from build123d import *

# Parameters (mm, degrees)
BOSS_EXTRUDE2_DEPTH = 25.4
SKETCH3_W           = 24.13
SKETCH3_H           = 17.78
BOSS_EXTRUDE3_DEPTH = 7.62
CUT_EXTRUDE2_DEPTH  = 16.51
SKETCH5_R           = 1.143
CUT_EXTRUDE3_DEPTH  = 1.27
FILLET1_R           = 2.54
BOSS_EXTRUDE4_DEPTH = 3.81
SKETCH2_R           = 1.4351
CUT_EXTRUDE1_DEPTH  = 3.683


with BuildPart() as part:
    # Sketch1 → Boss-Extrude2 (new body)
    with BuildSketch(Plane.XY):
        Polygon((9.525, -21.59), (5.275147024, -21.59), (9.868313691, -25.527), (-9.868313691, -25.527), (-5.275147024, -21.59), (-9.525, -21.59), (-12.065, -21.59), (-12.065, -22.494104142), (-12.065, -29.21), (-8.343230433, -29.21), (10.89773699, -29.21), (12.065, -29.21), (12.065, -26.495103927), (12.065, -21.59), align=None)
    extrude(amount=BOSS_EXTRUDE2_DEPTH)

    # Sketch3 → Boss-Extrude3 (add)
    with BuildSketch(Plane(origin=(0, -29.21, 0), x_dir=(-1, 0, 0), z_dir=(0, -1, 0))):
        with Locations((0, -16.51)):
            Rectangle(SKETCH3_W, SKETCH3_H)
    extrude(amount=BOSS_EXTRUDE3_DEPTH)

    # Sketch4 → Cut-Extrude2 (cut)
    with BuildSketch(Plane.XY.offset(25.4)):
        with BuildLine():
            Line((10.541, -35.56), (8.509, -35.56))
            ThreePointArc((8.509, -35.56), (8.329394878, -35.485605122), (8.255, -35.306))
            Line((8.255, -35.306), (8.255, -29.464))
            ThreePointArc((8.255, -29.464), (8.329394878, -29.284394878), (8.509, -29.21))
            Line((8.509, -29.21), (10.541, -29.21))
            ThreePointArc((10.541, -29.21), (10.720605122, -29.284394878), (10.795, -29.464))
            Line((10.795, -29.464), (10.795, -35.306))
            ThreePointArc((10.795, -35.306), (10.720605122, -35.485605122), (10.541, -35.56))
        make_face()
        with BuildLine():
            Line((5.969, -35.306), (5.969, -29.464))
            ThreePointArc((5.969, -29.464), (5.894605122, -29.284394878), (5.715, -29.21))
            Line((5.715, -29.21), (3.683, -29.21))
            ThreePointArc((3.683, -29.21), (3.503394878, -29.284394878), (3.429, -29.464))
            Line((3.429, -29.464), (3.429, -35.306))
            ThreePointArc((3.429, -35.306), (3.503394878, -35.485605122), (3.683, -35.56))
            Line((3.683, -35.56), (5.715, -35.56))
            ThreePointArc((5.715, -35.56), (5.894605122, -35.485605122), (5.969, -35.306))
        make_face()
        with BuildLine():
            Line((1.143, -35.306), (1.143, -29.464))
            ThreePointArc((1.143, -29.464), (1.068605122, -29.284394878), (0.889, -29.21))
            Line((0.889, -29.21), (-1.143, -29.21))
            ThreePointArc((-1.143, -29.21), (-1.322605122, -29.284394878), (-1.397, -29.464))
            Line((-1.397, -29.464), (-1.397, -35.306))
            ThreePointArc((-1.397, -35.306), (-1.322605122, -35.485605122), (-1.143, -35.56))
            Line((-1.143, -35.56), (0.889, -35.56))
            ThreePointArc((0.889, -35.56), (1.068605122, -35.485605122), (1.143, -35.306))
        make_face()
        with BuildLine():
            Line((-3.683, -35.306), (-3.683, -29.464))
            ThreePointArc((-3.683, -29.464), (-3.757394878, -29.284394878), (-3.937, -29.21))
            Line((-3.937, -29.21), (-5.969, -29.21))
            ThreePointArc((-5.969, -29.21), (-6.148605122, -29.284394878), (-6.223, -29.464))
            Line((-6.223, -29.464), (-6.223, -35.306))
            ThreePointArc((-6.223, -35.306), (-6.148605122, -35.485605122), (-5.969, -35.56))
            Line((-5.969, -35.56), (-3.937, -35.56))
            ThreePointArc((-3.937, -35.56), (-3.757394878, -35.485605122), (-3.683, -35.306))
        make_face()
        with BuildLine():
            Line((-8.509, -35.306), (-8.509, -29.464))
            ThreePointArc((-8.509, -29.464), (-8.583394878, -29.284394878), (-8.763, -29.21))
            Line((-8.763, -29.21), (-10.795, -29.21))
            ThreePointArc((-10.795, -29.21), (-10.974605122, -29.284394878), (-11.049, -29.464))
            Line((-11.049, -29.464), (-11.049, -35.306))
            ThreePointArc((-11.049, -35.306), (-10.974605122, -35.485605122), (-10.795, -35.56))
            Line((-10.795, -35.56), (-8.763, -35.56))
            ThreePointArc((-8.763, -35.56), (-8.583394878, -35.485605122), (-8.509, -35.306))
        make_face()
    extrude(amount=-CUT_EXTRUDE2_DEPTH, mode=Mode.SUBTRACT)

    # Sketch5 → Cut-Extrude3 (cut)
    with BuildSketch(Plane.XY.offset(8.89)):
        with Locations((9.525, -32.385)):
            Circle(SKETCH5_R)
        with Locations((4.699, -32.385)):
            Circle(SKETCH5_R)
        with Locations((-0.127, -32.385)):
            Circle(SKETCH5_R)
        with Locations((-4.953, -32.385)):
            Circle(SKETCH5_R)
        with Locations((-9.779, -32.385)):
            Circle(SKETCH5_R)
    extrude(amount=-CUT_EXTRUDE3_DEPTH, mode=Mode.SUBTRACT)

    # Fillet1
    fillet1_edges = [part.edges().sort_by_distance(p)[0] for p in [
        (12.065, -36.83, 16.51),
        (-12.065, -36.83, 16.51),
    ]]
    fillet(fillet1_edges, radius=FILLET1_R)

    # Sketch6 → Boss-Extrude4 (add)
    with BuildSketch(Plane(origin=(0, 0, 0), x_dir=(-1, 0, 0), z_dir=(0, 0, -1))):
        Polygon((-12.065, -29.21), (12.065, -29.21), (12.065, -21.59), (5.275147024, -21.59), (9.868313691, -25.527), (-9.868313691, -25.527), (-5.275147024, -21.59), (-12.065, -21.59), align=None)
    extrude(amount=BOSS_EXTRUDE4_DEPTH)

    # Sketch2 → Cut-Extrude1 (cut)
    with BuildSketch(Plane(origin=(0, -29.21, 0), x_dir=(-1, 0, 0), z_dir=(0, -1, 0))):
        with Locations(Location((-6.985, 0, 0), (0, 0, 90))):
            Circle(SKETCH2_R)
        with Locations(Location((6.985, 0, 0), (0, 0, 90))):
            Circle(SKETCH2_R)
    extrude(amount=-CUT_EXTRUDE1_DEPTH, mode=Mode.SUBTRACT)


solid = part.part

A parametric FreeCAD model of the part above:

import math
import FreeCAD as App
import Part
import Sketcher
from FreeCAD import Vector
Q = App.Units.Quantity


def edges_at(feature, points):
    """Names of the edges that pass closest to the given points."""
    edges = feature.Shape.Edges
    near = lambda p: min(range(len(edges)), key=lambda i: edges[i].distToShape(Part.Vertex(*p))[0])
    return sorted({f"Edge{near(p) + 1}" for p in points})

doc = App.newDocument("Part")
body = doc.addObject("PartDesign::Body", "Body")

sketch1 = body.newObject("Sketcher::SketchObject", "Sketch")
sketch1.AttachmentSupport = (doc.getObject("XY_Plane"), [""])
sketch1.MapMode = "FlatFace"
sketch1.addGeometry([
    Part.LineSegment(Vector(5, -22, 0), Vector(10, -26, 0)),
    Part.LineSegment(Vector(10, -26, 0), Vector(-10, -26, 0)),
    Part.LineSegment(Vector(-10, -26, 0), Vector(-5, -22, 0)),
    Part.LineSegment(Vector(-5, -22, 0), Vector(-12, -22, 0)),
    Part.LineSegment(Vector(-12, -22, 0), Vector(-12, -29, 0)),
    Part.LineSegment(Vector(-12, -29, 0), Vector(12, -29, 0)),
    Part.LineSegment(Vector(12, -29, 0), Vector(12, -22, 0)),
    Part.LineSegment(Vector(12, -22, 0), Vector(5, -22, 0)),
], False)
sketch1.addConstraint([
    Sketcher.Constraint("Coincident", 0, 2, 1, 1),
    Sketcher.Constraint("Coincident", 1, 2, 2, 1),
    Sketcher.Constraint("Coincident", 2, 2, 3, 1),
    Sketcher.Constraint("Coincident", 3, 2, 4, 1),
    Sketcher.Constraint("Coincident", 4, 2, 5, 1),
    Sketcher.Constraint("Coincident", 5, 2, 6, 1),
    Sketcher.Constraint("Coincident", 6, 2, 7, 1),
    Sketcher.Constraint("Coincident", 7, 2, 0, 1),
    Sketcher.Constraint("Horizontal", 1),
    Sketcher.Constraint("Horizontal", 3),
    Sketcher.Constraint("Vertical", 4),
    Sketcher.Constraint("Horizontal", 5),
    Sketcher.Constraint("Vertical", 6),
    Sketcher.Constraint("Horizontal", 7),
    Sketcher.Constraint("Symmetric", 3, 2, 6, 2, -2),
    Sketcher.Constraint("Equal", 3, 7),
    Sketcher.Constraint("Equal", 0, 2),
    Sketcher.Constraint("DistanceY", 4, 2, 4, 1, Q("0.3 in")),
    Sketcher.Constraint("DistanceX", 5, 1, 5, 2, Q("0.95 in")),
    Sketcher.Constraint("DistanceY", 2, 2, -1, 1, Q("0.85 in")),
    Sketcher.Constraint("DistanceY", 0, 2, -1, 1, Q("1.005 in")),
    Sketcher.Constraint("DistanceX", 1, 2, 1, 1, 19.736627),
    Sketcher.Constraint("DistanceX", 3, 2, 3, 1, 6.789853),
])
pad1 = body.newObject("PartDesign::Pad", "Pad")
pad1.Profile = sketch1
pad1.Length = Q("1 in")

sketch2 = body.newObject("Sketcher::SketchObject", "Sketch001")
sketch2.AttachmentSupport = (doc.getObject("XZ_Plane"), [""])
sketch2.MapMode = "FlatFace"
sketch2.AttachmentOffset = App.Placement(Vector(0, 0, 1.15 * 25.4), App.Rotation())
sketch2.addGeometry([
    Part.LineSegment(Vector(12, 8, 0), Vector(12, 25, 0)),
    Part.LineSegment(Vector(12, 25, 0), Vector(-12, 25, 0)),
    Part.LineSegment(Vector(-12, 25, 0), Vector(-12, 8, 0)),
    Part.LineSegment(Vector(-12, 8, 0), Vector(12, 8, 0)),
], False)
sketch2.addConstraint([
    Sketcher.Constraint("Coincident", 0, 2, 1, 1),
    Sketcher.Constraint("Coincident", 1, 2, 2, 1),
    Sketcher.Constraint("Coincident", 2, 2, 3, 1),
    Sketcher.Constraint("Coincident", 3, 2, 0, 1),
    Sketcher.Constraint("Vertical", 0),
    Sketcher.Constraint("Horizontal", 1),
    Sketcher.Constraint("Vertical", 2),
    Sketcher.Constraint("Horizontal", 3),
    Sketcher.Constraint("DistanceY", 0, 1, 0, 2, Q("0.7 in")),
    Sketcher.Constraint("DistanceY", -1, 1, 0, 2, Q("1 in")),
    Sketcher.Constraint("DistanceX", 1, 2, 1, 1, Q("0.95 in")),
    Sketcher.Constraint("DistanceX", -1, 1, 0, 2, Q("0.475 in")),
])
pad2 = body.newObject("PartDesign::Pad", "Pad001")
pad2.Profile = sketch2
pad2.Length = Q("0.3 in")

sketch3 = body.newObject("Sketcher::SketchObject", "Sketch002")
sketch3.AttachmentSupport = (doc.getObject("XY_Plane"), [""])
sketch3.MapMode = "FlatFace"
sketch3.AttachmentOffset = App.Placement(Vector(0, 0, 1 * 25.4), App.Rotation())
sketch3.addGeometry([
    Part.LineSegment(Vector(8.51, -35.56, 0), Vector(10.54, -35.56, 0)),
    Part.ArcOfCircle(Part.Circle(Vector(10.54, -35.31, 0), Vector(0, 0, 1), 0.25), math.radians(-90), math.radians(0)),
    Part.LineSegment(Vector(10.79, -35.31, 0), Vector(10.79, -29.46, 0)),
    Part.ArcOfCircle(Part.Circle(Vector(10.54, -29.46, 0), Vector(0, 0, 1), 0.25), math.radians(0), math.radians(90)),
    Part.LineSegment(Vector(10.54, -29.21, 0), Vector(8.51, -29.21, 0)),
    Part.ArcOfCircle(Part.Circle(Vector(8.51, -29.46, 0), Vector(0, 0, 1), 0.25), math.radians(90), math.radians(180)),
    Part.LineSegment(Vector(8.26, -29.46, 0), Vector(8.26, -35.31, 0)),
    Part.ArcOfCircle(Part.Circle(Vector(8.51, -35.31, 0), Vector(0, 0, 1), 0.25), math.radians(-180), math.radians(-90)),
    Part.LineSegment(Vector(5.97, -35.31, 0), Vector(5.97, -29.46, 0)),
    Part.ArcOfCircle(Part.Circle(Vector(5.71, -29.46, 0), Vector(0, 0, 1), 0.25), math.radians(0), math.radians(90)),
    Part.LineSegment(Vector(5.71, -29.21, 0), Vector(3.68, -29.21, 0)),
    Part.ArcOfCircle(Part.Circle(Vector(3.68, -29.46, 0), Vector(0, 0, 1), 0.25), math.radians(90), math.radians(180)),
    Part.LineSegment(Vector(3.43, -29.46, 0), Vector(3.43, -35.31, 0)),
    Part.ArcOfCircle(Part.Circle(Vector(3.68, -35.31, 0), Vector(0, 0, 1), 0.25), math.radians(-180), math.radians(-90)),
    Part.LineSegment(Vector(3.68, -35.56, 0), Vector(5.71, -35.56, 0)),
    Part.ArcOfCircle(Part.Circle(Vector(5.71, -35.31, 0), Vector(0, 0, 1), 0.25), math.radians(-90), math.radians(0)),
    Part.LineSegment(Vector(1.14, -35.31, 0), Vector(1.14, -29.46, 0)),
    Part.ArcOfCircle(Part.Circle(Vector(0.89, -29.46, 0), Vector(0, 0, 1), 0.25), math.radians(0), math.radians(90)),
    Part.LineSegment(Vector(0.89, -29.21, 0), Vector(-1.14, -29.21, 0)),
    Part.ArcOfCircle(Part.Circle(Vector(-1.14, -29.46, 0), Vector(0, 0, 1), 0.25), math.radians(90), math.radians(180)),
    Part.LineSegment(Vector(-1.4, -29.46, 0), Vector(-1.4, -35.31, 0)),
    Part.ArcOfCircle(Part.Circle(Vector(-1.14, -35.31, 0), Vector(0, 0, 1), 0.25), math.radians(-180), math.radians(-90)),
    Part.LineSegment(Vector(-1.14, -35.56, 0), Vector(0.89, -35.56, 0)),
    Part.ArcOfCircle(Part.Circle(Vector(0.89, -35.31, 0), Vector(0, 0, 1), 0.25), math.radians(-90), math.radians(0)),
    Part.LineSegment(Vector(-3.68, -35.31, 0), Vector(-3.68, -29.46, 0)),
    Part.ArcOfCircle(Part.Circle(Vector(-3.94, -29.46, 0), Vector(0, 0, 1), 0.25), math.radians(0), math.radians(90)),
    Part.LineSegment(Vector(-3.94, -29.21, 0), Vector(-5.97, -29.21, 0)),
    Part.ArcOfCircle(Part.Circle(Vector(-5.97, -29.46, 0), Vector(0, 0, 1), 0.25), math.radians(90), math.radians(180)),
    Part.LineSegment(Vector(-6.22, -29.46, 0), Vector(-6.22, -35.31, 0)),
    Part.ArcOfCircle(Part.Circle(Vector(-5.97, -35.31, 0), Vector(0, 0, 1), 0.25), math.radians(-180), math.radians(-90)),
    Part.LineSegment(Vector(-5.97, -35.56, 0), Vector(-3.94, -35.56, 0)),
    Part.ArcOfCircle(Part.Circle(Vector(-3.94, -35.31, 0), Vector(0, 0, 1), 0.25), math.radians(-90), math.radians(0)),
    Part.LineSegment(Vector(-8.51, -35.31, 0), Vector(-8.51, -29.46, 0)),
    Part.ArcOfCircle(Part.Circle(Vector(-8.76, -29.46, 0), Vector(0, 0, 1), 0.25), math.radians(0), math.radians(90)),
    Part.LineSegment(Vector(-8.76, -29.21, 0), Vector(-10.79, -29.21, 0)),
    Part.ArcOfCircle(Part.Circle(Vector(-10.79, -29.46, 0), Vector(0, 0, 1), 0.25), math.radians(90), math.radians(180)),
    Part.LineSegment(Vector(-11.05, -29.46, 0), Vector(-11.05, -35.31, 0)),
    Part.ArcOfCircle(Part.Circle(Vector(-10.79, -35.31, 0), Vector(0, 0, 1), 0.25), math.radians(-180), math.radians(-90)),
    Part.LineSegment(Vector(-10.79, -35.56, 0), Vector(-8.76, -35.56, 0)),
    Part.ArcOfCircle(Part.Circle(Vector(-8.76, -35.31, 0), Vector(0, 0, 1), 0.25), math.radians(-90), math.radians(0)),
], False)
sketch3.addConstraint([
    Sketcher.Constraint("Tangent", 0, 2, 1, 1),
    Sketcher.Constraint("Tangent", 1, 2, 2, 1),
    Sketcher.Constraint("Tangent", 2, 2, 3, 1),
    Sketcher.Constraint("Tangent", 3, 2, 4, 1),
    Sketcher.Constraint("Tangent", 4, 2, 5, 1),
    Sketcher.Constraint("Tangent", 5, 2, 6, 1),
    Sketcher.Constraint("Tangent", 6, 2, 7, 1),
    Sketcher.Constraint("Tangent", 7, 2, 0, 1),
    Sketcher.Constraint("Tangent", 8, 2, 9, 1),
    Sketcher.Constraint("Tangent", 9, 2, 10, 1),
    Sketcher.Constraint("Tangent", 10, 2, 11, 1),
    Sketcher.Constraint("Tangent", 11, 2, 12, 1),
    Sketcher.Constraint("Tangent", 12, 2, 13, 1),
    Sketcher.Constraint("Tangent", 13, 2, 14, 1),
    Sketcher.Constraint("Tangent", 14, 2, 15, 1),
    Sketcher.Constraint("Tangent", 15, 2, 8, 1),
    Sketcher.Constraint("Tangent", 16, 2, 17, 1),
    Sketcher.Constraint("Tangent", 17, 2, 18, 1),
    Sketcher.Constraint("Tangent", 18, 2, 19, 1),
    Sketcher.Constraint("Tangent", 19, 2, 20, 1),
    Sketcher.Constraint("Tangent", 20, 2, 21, 1),
    Sketcher.Constraint("Tangent", 21, 2, 22, 1),
    Sketcher.Constraint("Tangent", 22, 2, 23, 1),
    Sketcher.Constraint("Tangent", 23, 2, 16, 1),
    Sketcher.Constraint("Tangent", 24, 2, 25, 1),
    Sketcher.Constraint("Tangent", 25, 2, 26, 1),
    Sketcher.Constraint("Tangent", 26, 2, 27, 1),
    Sketcher.Constraint("Tangent", 27, 2, 28, 1),
    Sketcher.Constraint("Tangent", 28, 2, 29, 1),
    Sketcher.Constraint("Tangent", 29, 2, 30, 1),
    Sketcher.Constraint("Tangent", 30, 2, 31, 1),
    Sketcher.Constraint("Tangent", 31, 2, 24, 1),
    Sketcher.Constraint("Tangent", 32, 2, 33, 1),
    Sketcher.Constraint("Tangent", 33, 2, 34, 1),
    Sketcher.Constraint("Tangent", 34, 2, 35, 1),
    Sketcher.Constraint("Tangent", 35, 2, 36, 1),
    Sketcher.Constraint("Tangent", 36, 2, 37, 1),
    Sketcher.Constraint("Tangent", 37, 2, 38, 1),
    Sketcher.Constraint("Tangent", 38, 2, 39, 1),
    Sketcher.Constraint("Tangent", 39, 2, 32, 1),
    Sketcher.Constraint("Horizontal", 0),
    Sketcher.Constraint("Vertical", 2),
    Sketcher.Constraint("Horizontal", 4),
    Sketcher.Constraint("Vertical", 6),
    Sketcher.Constraint("Vertical", 8),
    Sketcher.Constraint("Horizontal", 10),
    Sketcher.Constraint("Vertical", 12),
    Sketcher.Constraint("Horizontal", 14),
    Sketcher.Constraint("Vertical", 16),
    Sketcher.Constraint("Horizontal", 18),
    Sketcher.Constraint("Vertical", 20),
    Sketcher.Constraint("Horizontal", 22),
    Sketcher.Constraint("Vertical", 24),
    Sketcher.Constraint("Horizontal", 26),
    Sketcher.Constraint("Vertical", 28),
    Sketcher.Constraint("Horizontal", 30),
    Sketcher.Constraint("Vertical", 32),
    Sketcher.Constraint("Horizontal", 34),
    Sketcher.Constraint("Vertical", 36),
    Sketcher.Constraint("Horizontal", 38),
    Sketcher.Constraint("Equal", 1, 3),
    Sketcher.Constraint("Equal", 3, 5),
    Sketcher.Constraint("Equal", 5, 7),
    Sketcher.Constraint("Equal", 7, 9),
    Sketcher.Constraint("Equal", 9, 11),
    Sketcher.Constraint("Equal", 11, 13),
    Sketcher.Constraint("Equal", 13, 15),
    Sketcher.Constraint("Equal", 15, 17),
    Sketcher.Constraint("Equal", 17, 19),
    Sketcher.Constraint("Equal", 19, 21),
    Sketcher.Constraint("Equal", 21, 23),
    Sketcher.Constraint("Equal", 23, 25),
    Sketcher.Constraint("Equal", 25, 27),
    Sketcher.Constraint("Equal", 27, 29),
    Sketcher.Constraint("Equal", 29, 31),
    Sketcher.Constraint("Equal", 31, 33),
    Sketcher.Constraint("Equal", 33, 35),
    Sketcher.Constraint("Equal", 35, 37),
    Sketcher.Constraint("Equal", 37, 39),
    Sketcher.Constraint("Horizontal", 5, 3, 9, 3),
    Sketcher.Constraint("Horizontal", 7, 3, 13, 3),
    Sketcher.Constraint("Horizontal", 11, 3, 17, 3),
    Sketcher.Constraint("Horizontal", 15, 3, 21, 3),
    Sketcher.Constraint("Horizontal", 19, 3, 25, 3),
    Sketcher.Constraint("Horizontal", 23, 3, 29, 3),
    Sketcher.Constraint("Horizontal", 27, 3, 33, 3),
    Sketcher.Constraint("Horizontal", 31, 3, 37, 3),
    Sketcher.Constraint("Equal", 4, 10),
    Sketcher.Constraint("Equal", 14, 18),
    Sketcher.Constraint("Equal", 22, 26),
    Sketcher.Constraint("Equal", 30, 34),
    Sketcher.Constraint("Radius", 1, Q("0.01 in")),
    Sketcher.Constraint("DistanceX", 0, 1, 0, 2, Q("0.08 in")),
    Sketcher.Constraint("DistanceY", 2, 1, 2, 2, Q("0.23 in")),
    Sketcher.Constraint("DistanceY", 0, 2, -1, 1, Q("1.4 in")),
    Sketcher.Constraint("DistanceX", 17, 3, 5, 3, Q("0.3 in")),
    Sketcher.Constraint("DistanceX", 25, 3, 11, 3, Q("0.3 in")),
    Sketcher.Constraint("DistanceX", 33, 3, 19, 3, Q("0.3 in")),
    Sketcher.Constraint("DistanceX", 15, 3, 1, 2, Q("0.2 in")),
    Sketcher.Constraint("DistanceX", -1, 1, 1, 3, Q("0.415 in")),
])
pocket1 = body.newObject("PartDesign::Pocket", "Pocket")
pocket1.Profile = sketch3
pocket1.Length = Q("0.65 in")

sketch4 = body.newObject("Sketcher::SketchObject", "Sketch003")
sketch4.AttachmentSupport = (doc.getObject("XY_Plane"), [""])
sketch4.MapMode = "FlatFace"
sketch4.AttachmentOffset = App.Placement(Vector(0, 0, 0.35 * 25.4), App.Rotation())
sketch4.addGeometry([
    Part.Circle(Vector(9.5, -32.4, 0), Vector(0, 0, 1), 1.1),
    Part.Circle(Vector(4.7, -32.4, 0), Vector(0, 0, 1), 1.1),
    Part.Circle(Vector(-0.1, -32.4, 0), Vector(0, 0, 1), 1.1),
    Part.Circle(Vector(-5, -32.4, 0), Vector(0, 0, 1), 1.1),
    Part.Circle(Vector(-9.8, -32.4, 0), Vector(0, 0, 1), 1.1),
], False)
sketch4.addConstraint([
    Sketcher.Constraint("Equal", 0, 1),
    Sketcher.Constraint("Equal", 1, 2),
    Sketcher.Constraint("Equal", 2, 3),
    Sketcher.Constraint("Equal", 3, 4),
    Sketcher.Constraint("Horizontal", 0, 3, 1, 3),
    Sketcher.Constraint("Horizontal", 1, 3, 2, 3),
    Sketcher.Constraint("Horizontal", 2, 3, 3, 3),
    Sketcher.Constraint("Horizontal", 3, 3, 4, 3),
    Sketcher.Constraint("Diameter", 0, Q("0.09 in")),
    Sketcher.Constraint("DistanceX", 1, 3, 0, 3, Q("0.19 in")),
    Sketcher.Constraint("DistanceX", 2, 3, 1, 3, Q("0.19 in")),
    Sketcher.Constraint("DistanceX", 3, 3, 2, 3, Q("0.19 in")),
    Sketcher.Constraint("DistanceX", 4, 3, 3, 3, Q("0.19 in")),
    Sketcher.Constraint("DistanceX", -1, 1, 0, 3, Q("0.375 in")),
    Sketcher.Constraint("DistanceY", 0, 3, -1, 1, Q("1.275 in")),
])
pocket2 = body.newObject("PartDesign::Pocket", "Pocket001")
pocket2.Profile = sketch4
pocket2.Length = Q("0.05 in")
doc.recompute()

fillet = body.newObject("PartDesign::Fillet", "Fillet")
fillet.Base = (pocket2, edges_at(pocket2, [(12.065, -36.83, 16.51), (-12.065, -36.83, 16.51)]))
fillet.Radius = Q("0.1 in")

sketch5 = body.newObject("Sketcher::SketchObject", "Sketch004")
sketch5.AttachmentSupport = (doc.getObject("XY_Plane"), [""])
sketch5.MapMode = "FlatFace"
sketch5.addGeometry([
    Part.LineSegment(Vector(12, -29, 0), Vector(-12, -29, 0)),
    Part.LineSegment(Vector(-12, -29, 0), Vector(-12, -22, 0)),
    Part.LineSegment(Vector(-12, -22, 0), Vector(-5, -22, 0)),
    Part.LineSegment(Vector(-5, -22, 0), Vector(-10, -26, 0)),
    Part.LineSegment(Vector(-10, -26, 0), Vector(10, -26, 0)),
    Part.LineSegment(Vector(10, -26, 0), Vector(5, -22, 0)),
    Part.LineSegment(Vector(5, -22, 0), Vector(12, -22, 0)),
    Part.LineSegment(Vector(12, -22, 0), Vector(12, -29, 0)),
], False)
sketch5.addConstraint([
    Sketcher.Constraint("Coincident", 0, 2, 1, 1),
    Sketcher.Constraint("Coincident", 1, 2, 2, 1),
    Sketcher.Constraint("Coincident", 2, 2, 3, 1),
    Sketcher.Constraint("Coincident", 3, 2, 4, 1),
    Sketcher.Constraint("Coincident", 4, 2, 5, 1),
    Sketcher.Constraint("Coincident", 5, 2, 6, 1),
    Sketcher.Constraint("Coincident", 6, 2, 7, 1),
    Sketcher.Constraint("Coincident", 7, 2, 0, 1),
    Sketcher.Constraint("Horizontal", 0),
    Sketcher.Constraint("Vertical", 1),
    Sketcher.Constraint("Horizontal", 2),
    Sketcher.Constraint("Horizontal", 4),
    Sketcher.Constraint("Horizontal", 6),
    Sketcher.Constraint("Vertical", 7),
    Sketcher.Constraint("Symmetric", 2, 2, 5, 2, -2),
    Sketcher.Constraint("Equal", 2, 6),
    Sketcher.Constraint("Equal", 3, 5),
    Sketcher.Constraint("DistanceY", 1, 1, 1, 2, Q("0.3 in")),
    Sketcher.Constraint("DistanceX", 0, 2, 0, 1, Q("0.95 in")),
    Sketcher.Constraint("DistanceY", 0, 2, -1, 1, Q("1.15 in")),
    Sketcher.Constraint("DistanceY", 3, 2, -1, 1, Q("1.005 in")),
    Sketcher.Constraint("DistanceX", 2, 1, 2, 2, 6.789853),
    Sketcher.Constraint("DistanceX", 4, 1, 4, 2, 19.736627),
])
pad3 = body.newObject("PartDesign::Pad", "Pad002")
pad3.Profile = sketch5
pad3.Length = Q("0.15 in")
pad3.Reversed = True

sketch6 = body.newObject("Sketcher::SketchObject", "Sketch005")
sketch6.AttachmentSupport = (doc.getObject("XZ_Plane"), [""])
sketch6.MapMode = "FlatFace"
sketch6.AttachmentOffset = App.Placement(Vector(0, 0, 1.15 * 25.4), App.Rotation())
sketch6.addGeometry([
    Part.Circle(Vector(7, 0, 0), Vector(0, 0, 1), 1.4),
    Part.Circle(Vector(-7, 0, 0), Vector(0, 0, 1), 1.4),
], False)
sketch6.addConstraint([
    Sketcher.Constraint("Equal", 0, 1),
    Sketcher.Constraint("Symmetric", 0, 3, 1, 3, -1, 1),
    Sketcher.Constraint("PointOnObject", 0, 3, -1),
    Sketcher.Constraint("Diameter", 0, Q("0.113 in")),
    Sketcher.Constraint("DistanceX", 1, 3, 0, 3, Q("0.55 in")),
])
pocket3 = body.newObject("PartDesign::Pocket", "Pocket002")
pocket3.Profile = sketch6
pocket3.Length = Q("0.145 in")

doc.recompute()
